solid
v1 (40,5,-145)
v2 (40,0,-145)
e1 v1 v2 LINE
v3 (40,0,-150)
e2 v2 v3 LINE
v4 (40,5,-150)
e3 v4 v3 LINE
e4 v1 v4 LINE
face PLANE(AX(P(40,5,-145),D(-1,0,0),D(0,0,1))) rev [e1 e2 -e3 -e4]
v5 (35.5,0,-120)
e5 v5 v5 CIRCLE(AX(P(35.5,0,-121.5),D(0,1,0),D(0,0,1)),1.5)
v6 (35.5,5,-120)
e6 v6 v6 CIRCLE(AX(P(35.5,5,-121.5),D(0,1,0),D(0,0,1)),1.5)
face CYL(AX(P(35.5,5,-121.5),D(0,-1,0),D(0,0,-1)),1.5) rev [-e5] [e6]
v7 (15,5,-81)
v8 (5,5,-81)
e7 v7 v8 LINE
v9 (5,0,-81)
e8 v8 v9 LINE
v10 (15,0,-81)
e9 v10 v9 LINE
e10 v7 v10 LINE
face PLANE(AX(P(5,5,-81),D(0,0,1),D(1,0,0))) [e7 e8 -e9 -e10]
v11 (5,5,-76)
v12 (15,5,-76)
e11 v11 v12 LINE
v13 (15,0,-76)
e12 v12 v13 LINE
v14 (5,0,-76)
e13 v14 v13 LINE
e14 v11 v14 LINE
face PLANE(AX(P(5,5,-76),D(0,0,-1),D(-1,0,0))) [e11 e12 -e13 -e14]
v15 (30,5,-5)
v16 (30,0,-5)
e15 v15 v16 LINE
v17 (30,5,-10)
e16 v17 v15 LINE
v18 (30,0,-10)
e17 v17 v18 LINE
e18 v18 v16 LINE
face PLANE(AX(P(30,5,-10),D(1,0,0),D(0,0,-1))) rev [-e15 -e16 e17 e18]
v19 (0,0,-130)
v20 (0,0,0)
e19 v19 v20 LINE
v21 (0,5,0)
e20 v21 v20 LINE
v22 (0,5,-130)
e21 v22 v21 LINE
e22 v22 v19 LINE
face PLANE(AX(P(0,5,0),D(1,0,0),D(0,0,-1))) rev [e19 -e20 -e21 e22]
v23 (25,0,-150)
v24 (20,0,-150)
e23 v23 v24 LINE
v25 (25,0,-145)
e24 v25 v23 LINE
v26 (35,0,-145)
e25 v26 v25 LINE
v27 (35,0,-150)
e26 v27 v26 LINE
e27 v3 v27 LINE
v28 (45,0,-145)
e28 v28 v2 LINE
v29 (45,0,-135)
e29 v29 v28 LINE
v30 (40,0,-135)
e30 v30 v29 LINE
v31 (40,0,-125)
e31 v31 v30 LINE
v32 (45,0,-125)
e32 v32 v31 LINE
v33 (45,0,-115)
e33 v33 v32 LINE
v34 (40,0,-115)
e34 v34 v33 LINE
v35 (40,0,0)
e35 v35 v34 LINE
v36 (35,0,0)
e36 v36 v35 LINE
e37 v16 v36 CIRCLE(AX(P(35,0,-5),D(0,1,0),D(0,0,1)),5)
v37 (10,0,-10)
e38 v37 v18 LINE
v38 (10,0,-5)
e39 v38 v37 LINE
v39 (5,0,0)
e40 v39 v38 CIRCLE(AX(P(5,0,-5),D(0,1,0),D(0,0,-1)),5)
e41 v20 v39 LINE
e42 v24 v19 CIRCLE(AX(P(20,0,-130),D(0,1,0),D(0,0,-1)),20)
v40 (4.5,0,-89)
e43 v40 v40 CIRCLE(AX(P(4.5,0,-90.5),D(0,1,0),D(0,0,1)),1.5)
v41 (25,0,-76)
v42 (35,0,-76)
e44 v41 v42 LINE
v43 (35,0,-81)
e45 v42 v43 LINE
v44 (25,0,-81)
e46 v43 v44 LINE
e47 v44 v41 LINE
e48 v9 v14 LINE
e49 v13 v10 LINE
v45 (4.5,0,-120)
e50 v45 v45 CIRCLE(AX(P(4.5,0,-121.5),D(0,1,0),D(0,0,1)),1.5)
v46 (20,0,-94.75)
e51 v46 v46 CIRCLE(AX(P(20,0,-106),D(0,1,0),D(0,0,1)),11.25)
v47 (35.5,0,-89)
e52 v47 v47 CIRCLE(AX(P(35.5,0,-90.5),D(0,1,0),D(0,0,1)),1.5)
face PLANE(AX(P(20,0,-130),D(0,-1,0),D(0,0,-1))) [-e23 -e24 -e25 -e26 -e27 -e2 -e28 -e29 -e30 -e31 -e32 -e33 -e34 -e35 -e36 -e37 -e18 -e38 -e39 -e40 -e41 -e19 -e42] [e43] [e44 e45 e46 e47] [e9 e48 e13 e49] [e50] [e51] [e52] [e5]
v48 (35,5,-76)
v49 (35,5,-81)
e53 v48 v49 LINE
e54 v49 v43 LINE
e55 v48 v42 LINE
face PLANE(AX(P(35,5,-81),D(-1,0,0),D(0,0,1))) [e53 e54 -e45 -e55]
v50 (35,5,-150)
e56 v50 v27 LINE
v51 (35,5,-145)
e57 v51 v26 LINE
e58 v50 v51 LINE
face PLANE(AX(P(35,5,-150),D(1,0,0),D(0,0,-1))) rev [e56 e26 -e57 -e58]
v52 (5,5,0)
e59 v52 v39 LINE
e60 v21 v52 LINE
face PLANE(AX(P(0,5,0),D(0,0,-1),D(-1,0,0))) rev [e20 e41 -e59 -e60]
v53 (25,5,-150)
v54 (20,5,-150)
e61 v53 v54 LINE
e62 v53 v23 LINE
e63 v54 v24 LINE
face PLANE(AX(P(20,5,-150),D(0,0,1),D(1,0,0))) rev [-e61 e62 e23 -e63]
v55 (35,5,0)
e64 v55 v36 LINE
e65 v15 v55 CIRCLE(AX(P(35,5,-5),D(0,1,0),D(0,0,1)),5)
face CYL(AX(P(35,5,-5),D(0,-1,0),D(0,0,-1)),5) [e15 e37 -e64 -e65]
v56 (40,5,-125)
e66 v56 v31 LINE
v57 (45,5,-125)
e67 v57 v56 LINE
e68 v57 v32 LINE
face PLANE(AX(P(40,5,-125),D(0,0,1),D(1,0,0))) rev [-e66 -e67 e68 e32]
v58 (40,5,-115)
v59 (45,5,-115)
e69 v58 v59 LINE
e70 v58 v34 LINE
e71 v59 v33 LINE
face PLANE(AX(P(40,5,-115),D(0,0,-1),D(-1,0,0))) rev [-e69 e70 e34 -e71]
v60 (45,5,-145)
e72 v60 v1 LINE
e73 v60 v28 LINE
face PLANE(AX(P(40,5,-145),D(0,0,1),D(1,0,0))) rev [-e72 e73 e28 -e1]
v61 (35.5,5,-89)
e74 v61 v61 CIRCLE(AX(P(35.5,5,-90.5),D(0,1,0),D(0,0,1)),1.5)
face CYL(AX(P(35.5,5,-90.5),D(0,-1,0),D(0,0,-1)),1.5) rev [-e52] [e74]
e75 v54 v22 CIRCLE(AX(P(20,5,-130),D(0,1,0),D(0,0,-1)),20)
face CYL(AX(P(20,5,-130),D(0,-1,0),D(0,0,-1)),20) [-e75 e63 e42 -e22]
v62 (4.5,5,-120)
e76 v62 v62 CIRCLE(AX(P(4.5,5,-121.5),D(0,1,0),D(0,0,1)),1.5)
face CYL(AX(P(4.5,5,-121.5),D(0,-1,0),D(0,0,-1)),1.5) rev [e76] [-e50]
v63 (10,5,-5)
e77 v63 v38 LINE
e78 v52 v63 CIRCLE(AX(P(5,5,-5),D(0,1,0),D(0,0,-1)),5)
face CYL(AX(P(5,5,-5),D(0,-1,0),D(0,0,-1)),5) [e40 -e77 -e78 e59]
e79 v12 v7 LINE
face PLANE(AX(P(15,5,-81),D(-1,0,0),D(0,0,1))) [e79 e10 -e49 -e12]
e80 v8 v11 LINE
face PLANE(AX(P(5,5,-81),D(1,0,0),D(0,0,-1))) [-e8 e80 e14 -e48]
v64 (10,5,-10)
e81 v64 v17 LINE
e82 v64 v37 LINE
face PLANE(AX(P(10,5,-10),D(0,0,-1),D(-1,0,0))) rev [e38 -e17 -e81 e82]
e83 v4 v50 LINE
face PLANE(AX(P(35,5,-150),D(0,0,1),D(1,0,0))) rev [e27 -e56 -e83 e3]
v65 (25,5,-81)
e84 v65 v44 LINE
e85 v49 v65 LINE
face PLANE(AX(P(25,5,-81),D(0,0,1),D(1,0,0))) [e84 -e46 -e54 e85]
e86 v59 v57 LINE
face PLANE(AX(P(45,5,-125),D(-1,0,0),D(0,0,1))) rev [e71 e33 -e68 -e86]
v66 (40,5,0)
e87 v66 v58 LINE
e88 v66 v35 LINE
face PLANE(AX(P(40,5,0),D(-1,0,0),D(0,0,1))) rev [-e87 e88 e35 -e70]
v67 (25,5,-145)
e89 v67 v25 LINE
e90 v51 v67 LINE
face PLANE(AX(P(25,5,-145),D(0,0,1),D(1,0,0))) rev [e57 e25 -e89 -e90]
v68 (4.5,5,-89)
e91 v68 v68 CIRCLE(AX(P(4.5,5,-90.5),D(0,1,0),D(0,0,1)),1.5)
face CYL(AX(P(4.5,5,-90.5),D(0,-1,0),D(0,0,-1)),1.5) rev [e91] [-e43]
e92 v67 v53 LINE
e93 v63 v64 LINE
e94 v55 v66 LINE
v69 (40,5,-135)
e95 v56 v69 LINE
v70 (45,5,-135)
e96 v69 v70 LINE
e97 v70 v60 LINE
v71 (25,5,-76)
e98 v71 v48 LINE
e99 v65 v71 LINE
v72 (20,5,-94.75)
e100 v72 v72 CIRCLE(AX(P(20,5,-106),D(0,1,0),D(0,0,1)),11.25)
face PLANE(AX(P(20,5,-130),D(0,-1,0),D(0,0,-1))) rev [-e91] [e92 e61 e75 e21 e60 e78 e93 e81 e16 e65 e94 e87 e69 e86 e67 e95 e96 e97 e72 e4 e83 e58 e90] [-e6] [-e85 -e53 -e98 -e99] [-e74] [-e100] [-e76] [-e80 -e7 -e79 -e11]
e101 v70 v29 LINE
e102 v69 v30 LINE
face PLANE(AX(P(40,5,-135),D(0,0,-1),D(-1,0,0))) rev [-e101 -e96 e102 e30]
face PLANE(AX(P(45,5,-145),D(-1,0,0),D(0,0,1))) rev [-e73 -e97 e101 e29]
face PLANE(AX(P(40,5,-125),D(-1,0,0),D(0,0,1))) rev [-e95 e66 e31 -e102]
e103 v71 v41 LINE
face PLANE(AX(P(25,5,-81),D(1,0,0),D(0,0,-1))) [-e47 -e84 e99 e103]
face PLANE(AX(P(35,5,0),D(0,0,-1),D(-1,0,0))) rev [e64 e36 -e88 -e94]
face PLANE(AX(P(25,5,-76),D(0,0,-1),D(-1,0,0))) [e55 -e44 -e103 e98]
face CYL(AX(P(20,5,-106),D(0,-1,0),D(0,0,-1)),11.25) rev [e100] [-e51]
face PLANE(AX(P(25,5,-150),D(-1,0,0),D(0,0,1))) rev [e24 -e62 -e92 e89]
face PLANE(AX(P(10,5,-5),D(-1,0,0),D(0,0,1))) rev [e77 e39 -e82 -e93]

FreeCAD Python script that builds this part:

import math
import FreeCAD as App
import Part
import Sketcher
Q = App.Units.Quantity

doc = App.newDocument("Part")
body = doc.addObject("PartDesign::Body", "Body")

# Sketch on XZ plane
sketch1 = body.newObject("Sketcher::SketchObject", "Sketch")
sketch1.AttachmentSupport = (doc.getObject("XZ_Plane"), [""])
sketch1.MapMode = "FlatFace"
sketch1.addGeometry(Part.LineSegment(App.Vector(10, -5, 0), App.Vector(10, -10, 0)), False)
sketch1.addGeometry(Part.LineSegment(App.Vector(10, -10, 0), App.Vector(30, -10, 0)), False)
sketch1.addGeometry(Part.LineSegment(App.Vector(30, -10, 0), App.Vector(30, -5, 0)), False)
sketch1.addGeometry(Part.ArcOfCircle(Part.Circle(App.Vector(35, -5, 0), App.Vector(0, 0, 1), 5), math.radians(90), math.radians(180)), False)
sketch1.addGeometry(Part.LineSegment(App.Vector(35, 0, 0), App.Vector(40, 0, 0)), False)
sketch1.addGeometry(Part.LineSegment(App.Vector(40, 0, 0), App.Vector(40, -115, 0)), False)
sketch1.addGeometry(Part.LineSegment(App.Vector(40, -115, 0), App.Vector(45, -115, 0)), False)
sketch1.addGeometry(Part.LineSegment(App.Vector(45, -115, 0), App.Vector(45, -125, 0)), False)
sketch1.addGeometry(Part.LineSegment(App.Vector(45, -125, 0), App.Vector(40, -125, 0)), False)
sketch1.addGeometry(Part.LineSegment(App.Vector(40, -125, 0), App.Vector(40, -135, 0)), False)
sketch1.addGeometry(Part.LineSegment(App.Vector(40, -135, 0), App.Vector(45, -135, 0)), False)
sketch1.addGeometry(Part.LineSegment(App.Vector(45, -135, 0), App.Vector(45, -145, 0)), False)
sketch1.addGeometry(Part.LineSegment(App.Vector(45, -145, 0), App.Vector(40, -145, 0)), False)
sketch1.addGeometry(Part.LineSegment(App.Vector(40, -145, 0), App.Vector(40, -150, 0)), False)
sketch1.addGeometry(Part.LineSegment(App.Vector(40, -150, 0), App.Vector(35, -150, 0)), False)
sketch1.addGeometry(Part.LineSegment(App.Vector(35, -150, 0), App.Vector(35, -145, 0)), False)
sketch1.addGeometry(Part.LineSegment(App.Vector(35, -145, 0), App.Vector(25, -145, 0)), False)
sketch1.addGeometry(Part.LineSegment(App.Vector(25, -145, 0), App.Vector(25, -150, 0)), False)
sketch1.addGeometry(Part.LineSegment(App.Vector(25, -150, 0), App.Vector(20, -150, 0)), False)
sketch1.addGeometry(Part.ArcOfCircle(Part.Circle(App.Vector(20, -130, 0), App.Vector(0, 0, 1), 20), math.radians(180), math.radians(270)), False)
sketch1.addGeometry(Part.LineSegment(App.Vector(0, -130, 0), App.Vector(0, 0, 0)), False)
sketch1.addGeometry(Part.LineSegment(App.Vector(0, 0, 0), App.Vector(5, 0, 0)), False)
sketch1.addGeometry(Part.ArcOfCircle(Part.Circle(App.Vector(5, -5, 0), App.Vector(0, 0, 1), 5), math.radians(0), math.radians(90)), False)
sketch1.addGeometry(Part.LineSegment(App.Vector(15, -76, 0), App.Vector(5, -76, 0)), False)
sketch1.addGeometry(Part.LineSegment(App.Vector(5, -76, 0), App.Vector(5, -81, 0)), False)
sketch1.addGeometry(Part.LineSegment(App.Vector(5, -81, 0), App.Vector(15, -81, 0)), False)
sketch1.addGeometry(Part.LineSegment(App.Vector(15, -81, 0), App.Vector(15, -76, 0)), False)
sketch1.addGeometry(Part.Circle(App.Vector(4.5, -90.5, 0), App.Vector(0, 0, 1), 1.5), False)
sketch1.addGeometry(Part.LineSegment(App.Vector(35, -76, 0), App.Vector(25, -76, 0)), False)
sketch1.addGeometry(Part.LineSegment(App.Vector(25, -76, 0), App.Vector(25, -81, 0)), False)
sketch1.addGeometry(Part.LineSegment(App.Vector(25, -81, 0), App.Vector(35, -81, 0)), False)
sketch1.addGeometry(Part.LineSegment(App.Vector(35, -81, 0), App.Vector(35, -76, 0)), False)
sketch1.addGeometry(Part.Circle(App.Vector(35.5, -90.5, 0), App.Vector(0, 0, 1), 1.5), False)
sketch1.addGeometry(Part.Circle(App.Vector(4.5, -121.5, 0), App.Vector(0, 0, 1), 1.5), False)
sketch1.addGeometry(Part.Circle(App.Vector(20, -106, 0), App.Vector(0, 0, 1), 11.2), False)
sketch1.addGeometry(Part.Circle(App.Vector(35.5, -121.5, 0), App.Vector(0, 0, 1), 1.5), False)
sketch1.addConstraint(Sketcher.Constraint("Coincident", 0, 2, 1, 1))
sketch1.addConstraint(Sketcher.Constraint("Coincident", 1, 2, 2, 1))
sketch1.addConstraint(Sketcher.Constraint("Tangent", 2, 2, 3, 2))
sketch1.addConstraint(Sketcher.Constraint("Tangent", 3, 1, 4, 1))
sketch1.addConstraint(Sketcher.Constraint("Coincident", 4, 2, 5, 1))
sketch1.addConstraint(Sketcher.Constraint("Coincident", 5, 2, 6, 1))
sketch1.addConstraint(Sketcher.Constraint("Coincident", 6, 2, 7, 1))
sketch1.addConstraint(Sketcher.Constraint("Coincident", 7, 2, 8, 1))
sketch1.addConstraint(Sketcher.Constraint("Coincident", 8, 2, 9, 1))
sketch1.addConstraint(Sketcher.Constraint("Coincident", 9, 2, 10, 1))
sketch1.addConstraint(Sketcher.Constraint("Coincident", 10, 2, 11, 1))
sketch1.addConstraint(Sketcher.Constraint("Coincident", 11, 2, 12, 1))
sketch1.addConstraint(Sketcher.Constraint("Coincident", 12, 2, 13, 1))
sketch1.addConstraint(Sketcher.Constraint("Coincident", 13, 2, 14, 1))
sketch1.addConstraint(Sketcher.Constraint("Coincident", 14, 2, 15, 1))
sketch1.addConstraint(Sketcher.Constraint("Coincident", 15, 2, 16, 1))
sketch1.addConstraint(Sketcher.Constraint("Coincident", 16, 2, 17, 1))
sketch1.addConstraint(Sketcher.Constraint("Coincident", 17, 2, 18, 1))
sketch1.addConstraint(Sketcher.Constraint("Tangent", 18, 2, 19, 2))
sketch1.addConstraint(Sketcher.Constraint("Tangent", 19, 1, 20, 1))
sketch1.addConstraint(Sketcher.Constraint("Coincident", 20, 2, 21, 1))
sketch1.addConstraint(Sketcher.Constraint("Tangent", 21, 2, 22, 2))
sketch1.addConstraint(Sketcher.Constraint("Tangent", 22, 1, 0, 1))
sketch1.addConstraint(Sketcher.Constraint("Coincident", 23, 2, 24, 1))
sketch1.addConstraint(Sketcher.Constraint("Coincident", 24, 2, 25, 1))
sketch1.addConstraint(Sketcher.Constraint("Coincident", 25, 2, 26, 1))
sketch1.addConstraint(Sketcher.Constraint("Coincident", 26, 2, 23, 1))
sketch1.addConstraint(Sketcher.Constraint("Coincident", 28, 2, 29, 1))
sketch1.addConstraint(Sketcher.Constraint("Coincident", 29, 2, 30, 1))
sketch1.addConstraint(Sketcher.Constraint("Coincident", 30, 2, 31, 1))
sketch1.addConstraint(Sketcher.Constraint("Coincident", 31, 2, 28, 1))
sketch1.addConstraint(Sketcher.Constraint("Vertical", 0))
sketch1.addConstraint(Sketcher.Constraint("Horizontal", 1))
sketch1.addConstraint(Sketcher.Constraint("Vertical", 2))
sketch1.addConstraint(Sketcher.Constraint("Horizontal", 4))
sketch1.addConstraint(Sketcher.Constraint("Vertical", 5))
sketch1.addConstraint(Sketcher.Constraint("Horizontal", 6))
sketch1.addConstraint(Sketcher.Constraint("Vertical", 7))
sketch1.addConstraint(Sketcher.Constraint("Horizontal", 8))
sketch1.addConstraint(Sketcher.Constraint("Vertical", 9))
sketch1.addConstraint(Sketcher.Constraint("Horizontal", 10))
sketch1.addConstraint(Sketcher.Constraint("Vertical", 11))
sketch1.addConstraint(Sketcher.Constraint("Horizontal", 12))
sketch1.addConstraint(Sketcher.Constraint("Vertical", 13))
sketch1.addConstraint(Sketcher.Constraint("Horizontal", 14))
sketch1.addConstraint(Sketcher.Constraint("Vertical", 15))
sketch1.addConstraint(Sketcher.Constraint("Horizontal", 16))
sketch1.addConstraint(Sketcher.Constraint("Vertical", 17))
sketch1.addConstraint(Sketcher.Constraint("Horizontal", 18))
sketch1.addConstraint(Sketcher.Constraint("Vertical", 20))
sketch1.addConstraint(Sketcher.Constraint("Horizontal", 21))
sketch1.addConstraint(Sketcher.Constraint("Horizontal", 23))
sketch1.addConstraint(Sketcher.Constraint("Vertical", 24))
sketch1.addConstraint(Sketcher.Constraint("Horizontal", 25))
sketch1.addConstraint(Sketcher.Constraint("Vertical", 26))
sketch1.addConstraint(Sketcher.Constraint("Horizontal", 28))
sketch1.addConstraint(Sketcher.Constraint("Vertical", 29))
sketch1.addConstraint(Sketcher.Constraint("Horizontal", 30))
sketch1.addConstraint(Sketcher.Constraint("Vertical", 31))
sketch1.addConstraint(Sketcher.Constraint("Coincident", 20, 2, -1, 1))
sketch1.addConstraint(Sketcher.Constraint("Equal", 3, 22))
sketch1.addConstraint(Sketcher.Constraint("Equal", 27, 32))
sketch1.addConstraint(Sketcher.Constraint("Equal", 32, 33))
sketch1.addConstraint(Sketcher.Constraint("Equal", 33, 35))
sketch1.addConstraint(Sketcher.Constraint("PointOnObject", 3, 1, -1))
sketch1.addConstraint(Sketcher.Constraint("Horizontal", 27, 3, 32, 3))
sketch1.addConstraint(Sketcher.Constraint("Horizontal", 33, 3, 35, 3))
sketch1.addConstraint(Sketcher.Constraint("Horizontal", 12, 2, 15, 2))
sketch1.addConstraint(Sketcher.Constraint("Horizontal", 14, 2, 17, 2))
sketch1.addConstraint(Sketcher.Constraint("Horizontal", 26, 2, 28, 2))
sketch1.addConstraint(Sketcher.Constraint("Horizontal", 25, 2, 29, 2))
sketch1.addConstraint(Sketcher.Constraint("Vertical", 27, 3, 33, 3))
sketch1.addConstraint(Sketcher.Constraint("Vertical", 19, 3, 34, 3))
sketch1.addConstraint(Sketcher.Constraint("Vertical", 32, 3, 35, 3))
sketch1.addConstraint(Sketcher.Constraint("Vertical", 5, 2, 8, 2))
sketch1.addConstraint(Sketcher.Constraint("Vertical", 7, 2, 10, 2))
sketch1.addConstraint(Sketcher.Constraint("Vertical", 9, 2, 12, 2))
sketch1.addConstraint(Sketcher.Constraint("Vertical", 3, 1, 14, 2))
sketch1.addConstraint(Sketcher.Constraint("Vertical", 21, 2, 23, 2))
sketch1.addConstraint(Sketcher.Constraint("Vertical", 17, 2, 28, 2))
sketch1.addConstraint(Sketcher.Constraint("Vertical", 15, 2, 30, 2))
sketch1.addConstraint(Sketcher.Constraint("Equal", 4, 6))
sketch1.addConstraint(Sketcher.Constraint("Equal", 14, 18))
sketch1.addConstraint(Sketcher.Constraint("Equal", 18, 21))
sketch1.addConstraint(Sketcher.Constraint("Equal", 16, 23))
sketch1.addConstraint(Sketcher.Constraint("Equal", 21, 0))
sketch1.addConstraint(Sketcher.Constraint("Equal", 30, 7))
sketch1.addConstraint(Sketcher.Constraint("Equal", 7, 9))
sketch1.addConstraint(Sketcher.Constraint("Equal", 9, 11))
sketch1.addConstraint(Sketcher.Constraint("Equal", 2, 13))
sketch1.addConstraint(Sketcher.Constraint("Equal", 17, 24))
sketch1.addConstraint(Sketcher.Constraint("Diameter", 27, Q("3 mm")))
sketch1.addConstraint(Sketcher.Constraint("Radius", 3, Q("5 mm")))
sketch1.addConstraint(Sketcher.Constraint("Radius", 19, Q("20 mm")))
sketch1.addConstraint(Sketcher.Constraint("Diameter", 34, Q("22.5 mm")))
sketch1.addConstraint(Sketcher.Constraint("DistanceX", 1, 1, 1, 2, Q("20 mm")))
sketch1.addConstraint(Sketcher.Constraint("DistanceX", 4, 1, 4, 2, Q("5 mm")))
sketch1.addConstraint(Sketcher.Constraint("DistanceY", 5, 2, 5, 1, Q("115 mm")))
sketch1.addConstraint(Sketcher.Constraint("DistanceY", 34, 3, -1, 1, Q("106 mm")))
sketch1.addConstraint(Sketcher.Constraint("DistanceY", 23, 2, -1, 1, Q("76 mm")))
sketch1.addConstraint(Sketcher.Constraint("DistanceX", 27, 3, 32, 3, Q("31 mm")))
sketch1.addConstraint(Sketcher.Constraint("DistanceY", 33, 3, 27, 3, Q("31 mm")))
sketch1.addConstraint(Sketcher.Constraint("DistanceX", -1, 1, 27, 3, Q("4.5 mm")))
sketch1.addConstraint(Sketcher.Constraint("DistanceY", 27, 3, -1, 1, Q("90.5 mm")))
pad1 = body.newObject("PartDesign::Pad", "Pad")
pad1.Profile = sketch1
pad1.Length = 5
pad1.Reversed = True

doc.recompute()
